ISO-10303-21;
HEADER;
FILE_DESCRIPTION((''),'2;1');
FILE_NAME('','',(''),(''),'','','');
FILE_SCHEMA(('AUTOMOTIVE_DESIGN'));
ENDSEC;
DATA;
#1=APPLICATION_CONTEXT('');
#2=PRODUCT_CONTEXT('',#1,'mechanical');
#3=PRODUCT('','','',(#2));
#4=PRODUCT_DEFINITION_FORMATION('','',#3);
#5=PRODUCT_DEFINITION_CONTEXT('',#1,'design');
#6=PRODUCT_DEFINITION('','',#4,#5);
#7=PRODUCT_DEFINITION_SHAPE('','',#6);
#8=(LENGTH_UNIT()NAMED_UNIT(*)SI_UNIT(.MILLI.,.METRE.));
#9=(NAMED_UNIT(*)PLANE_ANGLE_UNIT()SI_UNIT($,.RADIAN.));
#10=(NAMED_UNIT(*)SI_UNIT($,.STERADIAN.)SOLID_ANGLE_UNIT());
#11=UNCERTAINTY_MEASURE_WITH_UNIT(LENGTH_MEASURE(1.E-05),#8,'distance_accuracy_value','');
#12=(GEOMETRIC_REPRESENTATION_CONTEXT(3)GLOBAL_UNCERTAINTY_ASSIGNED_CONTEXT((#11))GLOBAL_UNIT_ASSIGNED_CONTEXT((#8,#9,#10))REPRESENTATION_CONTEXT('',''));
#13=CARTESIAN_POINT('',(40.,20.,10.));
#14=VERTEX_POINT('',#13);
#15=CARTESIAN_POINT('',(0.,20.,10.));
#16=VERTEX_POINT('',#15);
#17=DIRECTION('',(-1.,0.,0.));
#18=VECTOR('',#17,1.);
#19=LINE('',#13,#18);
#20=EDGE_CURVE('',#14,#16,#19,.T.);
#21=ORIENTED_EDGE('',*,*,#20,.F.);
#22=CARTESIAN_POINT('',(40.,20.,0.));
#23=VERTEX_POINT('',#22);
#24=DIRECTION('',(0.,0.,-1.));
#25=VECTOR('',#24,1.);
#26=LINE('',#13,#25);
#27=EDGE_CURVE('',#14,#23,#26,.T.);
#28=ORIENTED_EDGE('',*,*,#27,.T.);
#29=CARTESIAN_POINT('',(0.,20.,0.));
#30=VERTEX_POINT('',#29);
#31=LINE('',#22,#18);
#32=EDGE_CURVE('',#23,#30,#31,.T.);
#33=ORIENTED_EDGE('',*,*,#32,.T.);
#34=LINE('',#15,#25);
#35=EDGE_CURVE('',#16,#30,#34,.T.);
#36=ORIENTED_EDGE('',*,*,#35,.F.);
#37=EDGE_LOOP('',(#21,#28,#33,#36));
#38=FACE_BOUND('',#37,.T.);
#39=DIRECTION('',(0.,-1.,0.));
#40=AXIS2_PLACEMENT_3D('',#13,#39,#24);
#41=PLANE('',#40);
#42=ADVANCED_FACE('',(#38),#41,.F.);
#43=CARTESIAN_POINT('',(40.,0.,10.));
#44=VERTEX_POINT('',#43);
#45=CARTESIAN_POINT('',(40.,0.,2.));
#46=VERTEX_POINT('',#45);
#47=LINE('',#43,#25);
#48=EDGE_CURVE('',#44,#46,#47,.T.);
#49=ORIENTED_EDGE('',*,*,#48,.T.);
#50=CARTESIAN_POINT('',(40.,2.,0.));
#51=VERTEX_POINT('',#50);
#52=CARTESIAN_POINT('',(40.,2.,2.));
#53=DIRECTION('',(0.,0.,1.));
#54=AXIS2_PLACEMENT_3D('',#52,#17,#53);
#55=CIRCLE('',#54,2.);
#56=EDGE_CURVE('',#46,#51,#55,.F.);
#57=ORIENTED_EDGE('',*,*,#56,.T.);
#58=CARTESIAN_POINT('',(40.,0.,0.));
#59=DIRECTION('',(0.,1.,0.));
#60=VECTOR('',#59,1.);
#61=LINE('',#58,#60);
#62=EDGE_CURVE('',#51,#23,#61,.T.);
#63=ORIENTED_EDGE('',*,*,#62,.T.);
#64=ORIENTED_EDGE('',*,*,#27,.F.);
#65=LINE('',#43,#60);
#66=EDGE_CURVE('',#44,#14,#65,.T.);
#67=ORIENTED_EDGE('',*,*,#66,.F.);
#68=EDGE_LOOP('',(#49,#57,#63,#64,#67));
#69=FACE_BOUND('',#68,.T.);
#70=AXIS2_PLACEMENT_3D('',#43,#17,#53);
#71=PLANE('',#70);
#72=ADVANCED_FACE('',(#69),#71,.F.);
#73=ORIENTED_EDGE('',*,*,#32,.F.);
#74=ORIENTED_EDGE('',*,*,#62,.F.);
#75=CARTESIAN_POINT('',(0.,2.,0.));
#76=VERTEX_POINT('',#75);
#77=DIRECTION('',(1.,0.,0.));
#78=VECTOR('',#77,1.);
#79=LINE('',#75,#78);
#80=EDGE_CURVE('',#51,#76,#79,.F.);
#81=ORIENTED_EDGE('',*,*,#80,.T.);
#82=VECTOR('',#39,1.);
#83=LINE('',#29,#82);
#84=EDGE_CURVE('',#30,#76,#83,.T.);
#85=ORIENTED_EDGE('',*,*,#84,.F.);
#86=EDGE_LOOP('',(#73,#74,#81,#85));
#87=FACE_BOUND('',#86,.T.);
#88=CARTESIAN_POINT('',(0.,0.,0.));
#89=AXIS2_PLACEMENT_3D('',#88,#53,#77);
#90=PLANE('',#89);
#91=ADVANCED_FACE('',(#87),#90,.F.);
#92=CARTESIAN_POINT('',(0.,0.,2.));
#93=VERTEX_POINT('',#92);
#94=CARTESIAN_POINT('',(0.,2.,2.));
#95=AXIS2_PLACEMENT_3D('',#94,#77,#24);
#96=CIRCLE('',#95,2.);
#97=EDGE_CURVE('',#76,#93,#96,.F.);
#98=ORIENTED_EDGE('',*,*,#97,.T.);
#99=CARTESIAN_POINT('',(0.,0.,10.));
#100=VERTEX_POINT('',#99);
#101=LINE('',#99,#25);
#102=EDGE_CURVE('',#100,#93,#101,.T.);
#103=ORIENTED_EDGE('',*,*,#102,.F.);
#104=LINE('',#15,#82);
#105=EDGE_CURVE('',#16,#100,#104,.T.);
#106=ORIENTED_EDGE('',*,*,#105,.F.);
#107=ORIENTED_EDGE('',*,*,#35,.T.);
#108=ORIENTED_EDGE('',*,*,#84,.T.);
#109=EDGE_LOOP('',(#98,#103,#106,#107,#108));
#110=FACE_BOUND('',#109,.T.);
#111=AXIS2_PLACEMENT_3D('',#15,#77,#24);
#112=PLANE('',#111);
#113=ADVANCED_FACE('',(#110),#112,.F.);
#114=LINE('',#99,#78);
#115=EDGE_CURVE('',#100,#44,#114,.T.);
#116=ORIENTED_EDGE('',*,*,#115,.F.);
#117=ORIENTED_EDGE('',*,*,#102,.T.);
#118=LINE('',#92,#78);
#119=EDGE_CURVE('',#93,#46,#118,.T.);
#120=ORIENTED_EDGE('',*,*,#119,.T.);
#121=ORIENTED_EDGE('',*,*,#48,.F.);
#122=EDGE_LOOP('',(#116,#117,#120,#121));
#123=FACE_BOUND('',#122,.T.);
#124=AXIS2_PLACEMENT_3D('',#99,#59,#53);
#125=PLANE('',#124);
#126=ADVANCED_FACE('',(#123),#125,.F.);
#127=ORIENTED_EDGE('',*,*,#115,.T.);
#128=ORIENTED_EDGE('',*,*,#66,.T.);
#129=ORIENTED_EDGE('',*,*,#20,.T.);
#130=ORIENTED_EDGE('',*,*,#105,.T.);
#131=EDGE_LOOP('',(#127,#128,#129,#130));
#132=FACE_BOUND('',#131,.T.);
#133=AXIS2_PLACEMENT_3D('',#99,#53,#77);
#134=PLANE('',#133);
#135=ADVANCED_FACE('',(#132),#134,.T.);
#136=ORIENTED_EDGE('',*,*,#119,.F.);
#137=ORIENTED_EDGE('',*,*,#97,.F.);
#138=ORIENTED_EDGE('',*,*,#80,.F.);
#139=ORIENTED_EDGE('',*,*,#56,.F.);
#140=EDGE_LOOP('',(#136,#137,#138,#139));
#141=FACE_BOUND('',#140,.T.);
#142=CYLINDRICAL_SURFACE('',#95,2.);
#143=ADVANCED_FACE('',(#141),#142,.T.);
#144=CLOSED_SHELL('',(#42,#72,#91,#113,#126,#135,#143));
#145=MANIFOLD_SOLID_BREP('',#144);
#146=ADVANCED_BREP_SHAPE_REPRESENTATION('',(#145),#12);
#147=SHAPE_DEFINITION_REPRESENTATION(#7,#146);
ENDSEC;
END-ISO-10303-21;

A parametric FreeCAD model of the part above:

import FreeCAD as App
import Part
import Sketcher


def edges_at(feature, points):
    """Names of the edges that pass closest to the given points."""
    edges = feature.Shape.Edges
    near = lambda p: min(range(len(edges)), key=lambda i: edges[i].distToShape(Part.Vertex(*p))[0])
    return sorted({f"Edge{near(p) + 1}" for p in points})

doc = App.newDocument("Part")
body = doc.addObject("PartDesign::Body", "Body")

# Sketch on XY plane
sketch1 = doc.addObject("Sketcher::SketchObject", "Sketch")
body.addObject(sketch1)
sketch1.AttachmentSupport = (doc.XY_Plane, [""])
sketch1.MapMode = "FlatFace"
sketch1.addGeometry(Part.LineSegment(App.Vector(0, 20, 0), App.Vector(0, 0, 0)), False)
sketch1.addGeometry(Part.LineSegment(App.Vector(0, 0, 0), App.Vector(40, 0, 0)), False)
sketch1.addGeometry(Part.LineSegment(App.Vector(40, 0, 0), App.Vector(40, 20, 0)), False)
sketch1.addGeometry(Part.LineSegment(App.Vector(40, 20, 0), App.Vector(0, 20, 0)), False)
sketch1.addConstraint(Sketcher.Constraint("Coincident", 0, 2, 1, 1))
sketch1.addConstraint(Sketcher.Constraint("Coincident", 1, 2, 2, 1))
sketch1.addConstraint(Sketcher.Constraint("Coincident", 2, 2, 3, 1))
sketch1.addConstraint(Sketcher.Constraint("Coincident", 3, 2, 0, 1))
sketch1.addConstraint(Sketcher.Constraint("Vertical", 0))
sketch1.addConstraint(Sketcher.Constraint("Horizontal", 1))
sketch1.addConstraint(Sketcher.Constraint("Vertical", 2))
sketch1.addConstraint(Sketcher.Constraint("Horizontal", 3))
sketch1.addConstraint(Sketcher.Constraint("Coincident", 0, 2, -1, 1))
sketch1.addConstraint(Sketcher.Constraint("DistanceX", 1, 1, 1, 2, 40.0))
sketch1.addConstraint(Sketcher.Constraint("DistanceY", 0, 2, 0, 1, 20.0))
pad1 = doc.addObject("PartDesign::Pad", "Pad")
body.addObject(pad1)
pad1.Profile = sketch1
pad1.Length = 10
doc.recompute()

fillet = doc.addObject("PartDesign::Fillet", "Fillet")
body.addObject(fillet)
fillet.Base = (pad1, edges_at(pad1, [(20, 0, 0)]))
fillet.Radius = 2

doc.recompute()
